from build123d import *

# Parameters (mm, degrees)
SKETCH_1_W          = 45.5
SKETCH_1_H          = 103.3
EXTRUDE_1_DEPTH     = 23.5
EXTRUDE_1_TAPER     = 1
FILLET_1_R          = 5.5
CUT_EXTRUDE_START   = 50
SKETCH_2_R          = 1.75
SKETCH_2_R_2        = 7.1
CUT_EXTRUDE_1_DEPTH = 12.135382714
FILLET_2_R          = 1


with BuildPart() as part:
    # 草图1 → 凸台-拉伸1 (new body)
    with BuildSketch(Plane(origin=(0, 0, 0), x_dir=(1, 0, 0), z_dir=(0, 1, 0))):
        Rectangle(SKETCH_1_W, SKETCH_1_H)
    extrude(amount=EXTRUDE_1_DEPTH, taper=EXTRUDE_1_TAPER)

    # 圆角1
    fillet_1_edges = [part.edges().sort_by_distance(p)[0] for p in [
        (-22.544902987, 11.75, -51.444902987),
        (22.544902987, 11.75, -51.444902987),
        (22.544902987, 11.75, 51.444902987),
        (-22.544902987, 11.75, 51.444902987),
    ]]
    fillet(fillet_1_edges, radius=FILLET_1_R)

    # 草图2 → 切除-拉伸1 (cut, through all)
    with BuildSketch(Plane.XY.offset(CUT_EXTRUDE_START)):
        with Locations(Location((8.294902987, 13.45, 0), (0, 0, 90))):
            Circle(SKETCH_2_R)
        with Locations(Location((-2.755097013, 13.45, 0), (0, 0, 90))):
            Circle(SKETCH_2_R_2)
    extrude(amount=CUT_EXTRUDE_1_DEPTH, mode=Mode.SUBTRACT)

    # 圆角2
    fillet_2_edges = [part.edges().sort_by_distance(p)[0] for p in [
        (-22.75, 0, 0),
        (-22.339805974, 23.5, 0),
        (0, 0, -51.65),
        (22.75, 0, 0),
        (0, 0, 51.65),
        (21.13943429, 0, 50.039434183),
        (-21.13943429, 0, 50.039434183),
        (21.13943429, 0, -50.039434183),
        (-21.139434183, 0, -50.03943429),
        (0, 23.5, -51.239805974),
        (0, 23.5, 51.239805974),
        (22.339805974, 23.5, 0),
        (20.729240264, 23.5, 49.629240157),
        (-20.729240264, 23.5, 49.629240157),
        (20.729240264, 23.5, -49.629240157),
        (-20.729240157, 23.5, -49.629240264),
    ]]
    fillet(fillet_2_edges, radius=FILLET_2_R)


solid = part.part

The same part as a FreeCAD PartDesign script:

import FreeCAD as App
import Part
import Sketcher

V = App.Vector
Q = App.Units.Quantity


def edges_at(feature, points):
    """Names of the edges that pass closest to the given points."""
    edges = feature.Shape.Edges
    near = lambda p: min(range(len(edges)), key=lambda i: edges[i].distToShape(Part.Vertex(*p))[0])
    return sorted({f"Edge{near(p) + 1}" for p in points})

doc = App.newDocument("Part")
body = doc.addObject("PartDesign::Body", "Body")

sketch1 = body.newObject("Sketcher::SketchObject", "Sketch")
sketch1.AttachmentSupport = (doc.getObject("XZ_Plane"), [""])
sketch1.MapMode = "FlatFace"
sketch1.addGeometry([
    Part.LineSegment(V(-23, -52, 0), V(-23, 52, 0)),
    Part.LineSegment(V(-23, 52, 0), V(23, 52, 0)),
    Part.LineSegment(V(23, 52, 0), V(23, -52, 0)),
    Part.LineSegment(V(23, -52, 0), V(-23, -52, 0)),
], False)
sketch1.addConstraint([
    Sketcher.Constraint("Coincident", 0, 2, 1, 1),
    Sketcher.Constraint("Coincident", 1, 2, 2, 1),
    Sketcher.Constraint("Coincident", 2, 2, 3, 1),
    Sketcher.Constraint("Coincident", 3, 2, 0, 1),
    Sketcher.Constraint("Vertical", 0),
    Sketcher.Constraint("Horizontal", 1),
    Sketcher.Constraint("Vertical", 2),
    Sketcher.Constraint("Horizontal", 3),
    Sketcher.Constraint("Symmetric", 0, 2, 2, 2, -1, 1),
    Sketcher.Constraint("DistanceX", 1, 1, 1, 2, Q("45.5 mm")),
    Sketcher.Constraint("DistanceY", 0, 1, 0, 2, Q("103.3 mm")),
])
pad1 = body.newObject("PartDesign::Pad", "Pad")
pad1.Profile = sketch1
pad1.Length = 23.5
pad1.Reversed = True
pad1.TaperAngle = -1
doc.recompute()

fillet = body.newObject("PartDesign::Fillet", "Fillet")
fillet.Base = (pad1, edges_at(pad1, [
    (-22.545, 11.75, -51.445),
    (22.545, 11.75, -51.445),
    (22.545, 11.75, 51.445),
    (-22.545, 11.75, 51.445),
]))
fillet.Radius = 5.5

sketch2 = body.newObject("Sketcher::SketchObject", "Sketch001")
sketch2.AttachmentSupport = (doc.getObject("XY_Plane"), [""])
sketch2.MapMode = "FlatFace"
sketch2.AttachmentOffset = App.Placement(V(0, 0, 50), App.Rotation())
sketch2.addGeometry([
    Part.Circle(V(8.3, 13.4, 0), V(0, 0, 1), 1.8),
    Part.Circle(V(-2.8, 13.4, 0), V(0, 0, 1), 7.1),
], False)
sketch2.addConstraint([
    Sketcher.Constraint("Horizontal", 0, 3, 1, 3),
    Sketcher.Constraint("Diameter", 0, Q("3.5 mm")),
    Sketcher.Constraint("Diameter", 1, Q("14.2 mm")),
    Sketcher.Constraint("DistanceY", -1, 1, 0, 3, Q("13.45 mm")),
    Sketcher.Constraint("DistanceX", 1, 3, 0, 3, Q("11.05 mm")),
    Sketcher.Constraint("DistanceX", -1, 1, 0, 3, Q("8.294903 mm")),
])
pocket1 = body.newObject("PartDesign::Pocket", "Pocket")
pocket1.Profile = sketch2
pocket1.Type = "ThroughAll"
pocket1.Reversed = True
doc.recompute()

fillet2 = body.newObject("PartDesign::Fillet", "Fillet001")
fillet2.Base = (pocket1, edges_at(pocket1, [
    (-22.75, 0, 0),
    (-22.34, 23.5, 0),
    (0, 0, -51.65),
    (22.75, 0, 0),
    (0, 0, 51.65),
    (21.139, 0, 50.039),
    (-21.139, 0, 50.039),
    (21.139, 0, -50.039),
    (-21.139, 0, -50.039),
    (0, 23.5, -51.24),
    (0, 23.5, 51.24),
    (22.34, 23.5, 0),
    (20.729, 23.5, 49.629),
    (-20.729, 23.5, 49.629),
    (20.729, 23.5, -49.629),
    (-20.729, 23.5, -49.629),
]))
fillet2.Radius = 1

doc.recompute()
